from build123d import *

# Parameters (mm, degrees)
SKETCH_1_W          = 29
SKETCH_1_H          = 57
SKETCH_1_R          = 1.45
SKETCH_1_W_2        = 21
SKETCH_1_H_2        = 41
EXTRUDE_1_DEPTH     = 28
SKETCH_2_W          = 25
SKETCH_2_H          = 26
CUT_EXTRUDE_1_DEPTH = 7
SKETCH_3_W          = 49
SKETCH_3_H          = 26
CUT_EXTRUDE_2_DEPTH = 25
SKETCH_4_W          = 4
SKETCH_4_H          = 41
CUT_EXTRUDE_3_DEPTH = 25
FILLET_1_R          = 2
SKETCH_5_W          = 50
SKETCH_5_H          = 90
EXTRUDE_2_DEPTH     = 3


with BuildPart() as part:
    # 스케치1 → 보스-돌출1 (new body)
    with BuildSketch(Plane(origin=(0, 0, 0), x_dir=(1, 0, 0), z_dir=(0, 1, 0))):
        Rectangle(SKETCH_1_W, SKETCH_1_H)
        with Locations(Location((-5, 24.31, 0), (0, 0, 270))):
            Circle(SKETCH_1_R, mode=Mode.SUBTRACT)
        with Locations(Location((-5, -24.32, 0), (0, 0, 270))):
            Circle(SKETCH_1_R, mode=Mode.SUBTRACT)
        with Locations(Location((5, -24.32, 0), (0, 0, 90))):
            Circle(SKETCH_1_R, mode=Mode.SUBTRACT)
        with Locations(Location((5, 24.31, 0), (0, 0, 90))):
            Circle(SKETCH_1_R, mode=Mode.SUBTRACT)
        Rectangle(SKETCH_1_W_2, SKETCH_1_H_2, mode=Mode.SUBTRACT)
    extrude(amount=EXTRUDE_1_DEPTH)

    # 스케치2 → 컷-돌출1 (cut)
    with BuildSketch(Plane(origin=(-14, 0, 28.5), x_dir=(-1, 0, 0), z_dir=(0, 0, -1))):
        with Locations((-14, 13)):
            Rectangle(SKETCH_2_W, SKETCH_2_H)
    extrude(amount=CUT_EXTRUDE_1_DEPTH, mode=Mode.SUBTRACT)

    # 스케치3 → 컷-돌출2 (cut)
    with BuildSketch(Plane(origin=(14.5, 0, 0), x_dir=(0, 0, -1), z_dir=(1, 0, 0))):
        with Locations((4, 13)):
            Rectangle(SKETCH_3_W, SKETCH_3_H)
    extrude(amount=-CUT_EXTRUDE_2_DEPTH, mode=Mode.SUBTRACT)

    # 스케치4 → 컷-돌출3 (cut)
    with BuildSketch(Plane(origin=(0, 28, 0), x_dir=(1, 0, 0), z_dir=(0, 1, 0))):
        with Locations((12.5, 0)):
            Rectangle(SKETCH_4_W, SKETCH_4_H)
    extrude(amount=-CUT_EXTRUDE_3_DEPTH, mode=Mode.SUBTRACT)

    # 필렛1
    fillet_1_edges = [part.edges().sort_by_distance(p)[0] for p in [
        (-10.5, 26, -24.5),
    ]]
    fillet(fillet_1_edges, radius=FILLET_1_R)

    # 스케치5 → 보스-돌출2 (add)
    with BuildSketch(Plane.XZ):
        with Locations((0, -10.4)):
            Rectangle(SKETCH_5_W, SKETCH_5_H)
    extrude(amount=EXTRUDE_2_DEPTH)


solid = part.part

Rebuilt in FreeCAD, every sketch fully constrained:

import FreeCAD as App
import Part
import Sketcher

V = App.Vector
Q = App.Units.Quantity


def edges_at(feature, points):
    """Names of the edges that pass closest to the given points."""
    edges = feature.Shape.Edges
    near = lambda p: min(range(len(edges)), key=lambda i: edges[i].distToShape(Part.Vertex(*p))[0])
    return sorted({f"Edge{near(p) + 1}" for p in points})


def add_polygon(sketch, points):
    """Adds a closed chain of lines whose ends are joined by coincident constraints."""
    first, n = sketch.GeometryCount, len(points)
    for a, b in zip(points, points[1:] + points[:1]):
        sketch.addGeometry(Part.LineSegment(App.Vector(*a, 0), App.Vector(*b, 0)), False)
    for i in range(n):
        sketch.addConstraint(Sketcher.Constraint("Coincident", first + i, 2, first + (i + 1) % n, 1))

doc = App.newDocument("Part")
body = doc.addObject("PartDesign::Body", "Body")

# Sketch on XZ plane
sketch1 = doc.addObject("Sketcher::SketchObject", "Sketch")
body.addObject(sketch1)
sketch1.AttachmentSupport = (doc.XZ_Plane, [""])
sketch1.MapMode = "FlatFace"
add_polygon(sketch1, [(-14.5, -28.5), (-14.5, 28.5), (14.5, 28.5), (14.5, -28.5)])  # lines 0-3
sketch1.addGeometry(Part.Circle(V(-5, 24.3, 0), V(0, 0, 1), 1.4), False)  # 4
sketch1.addGeometry(Part.Circle(V(5, 24.3, 0), V(0, 0, 1), 1.4), False)  # 5
sketch1.addGeometry(Part.Circle(V(-5, -24.3, 0), V(0, 0, 1), 1.4), False)  # 6
add_polygon(sketch1, [(10.5, 20.5), (-10.5, 20.5), (-10.5, -20.5), (10.5, -20.5)])  # lines 7-10
sketch1.addGeometry(Part.Circle(V(5, -24.3, 0), V(0, 0, 1), 1.4), False)  # 11
sketch1.addConstraint(Sketcher.Constraint("Vertical", 0))
sketch1.addConstraint(Sketcher.Constraint("Horizontal", 1))
sketch1.addConstraint(Sketcher.Constraint("Vertical", 2))
sketch1.addConstraint(Sketcher.Constraint("Horizontal", 3))
sketch1.addConstraint(Sketcher.Constraint("Horizontal", 7))
sketch1.addConstraint(Sketcher.Constraint("Vertical", 8))
sketch1.addConstraint(Sketcher.Constraint("Horizontal", 9))
sketch1.addConstraint(Sketcher.Constraint("Vertical", 10))
sketch1.addConstraint(Sketcher.Constraint("Equal", 4, 5))
sketch1.addConstraint(Sketcher.Constraint("Equal", 5, 6))
sketch1.addConstraint(Sketcher.Constraint("Equal", 6, 11))
sketch1.addConstraint(Sketcher.Constraint("Symmetric", 0, 2, 2, 2, -1, 1))
sketch1.addConstraint(Sketcher.Constraint("Symmetric", 7, 2, 9, 2, -1, 1))
sketch1.addConstraint(Sketcher.Constraint("Symmetric", 4, 3, 5, 3, -2))
sketch1.addConstraint(Sketcher.Constraint("Symmetric", 6, 3, 11, 3, -2))
sketch1.addConstraint(Sketcher.Constraint("Vertical", 4, 3, 6, 3))
sketch1.addConstraint(Sketcher.Constraint("Diameter", 4, Q("2.9 mm")))
sketch1.addConstraint(Sketcher.Constraint("DistanceX", 1, 1, 1, 2, Q("29 mm")))
sketch1.addConstraint(Sketcher.Constraint("DistanceX", 7, 2, 7, 1, Q("21 mm")))
sketch1.addConstraint(Sketcher.Constraint("DistanceY", 0, 1, 0, 2, Q("57 mm")))
sketch1.addConstraint(Sketcher.Constraint("DistanceY", 8, 2, 8, 1, Q("41 mm")))
sketch1.addConstraint(Sketcher.Constraint("DistanceX", 4, 3, -1, 1, Q("5 mm")))
sketch1.addConstraint(Sketcher.Constraint("DistanceY", -1, 1, 4, 3, Q("24.32 mm")))
sketch1.addConstraint(Sketcher.Constraint("DistanceY", 6, 3, -1, 1, Q("24.31 mm")))
pad1 = doc.addObject("PartDesign::Pad", "Pad")
body.addObject(pad1)
pad1.Profile = sketch1
pad1.Length = 28
pad1.Reversed = True

# Sketch on XY plane
sketch2 = doc.addObject("Sketcher::SketchObject", "Sketch001")
body.addObject(sketch2)
sketch2.AttachmentSupport = (doc.XY_Plane, [""])
sketch2.MapMode = "FlatFace"
sketch2.AttachmentOffset = App.Placement(V(0, 0, 28.5), App.Rotation())
add_polygon(sketch2, [(12, 26), (12, 0), (-12, 0), (-12, 26)])  # lines 0-3
sketch2.addConstraint(Sketcher.Constraint("Vertical", 0))
sketch2.addConstraint(Sketcher.Constraint("Horizontal", 1))
sketch2.addConstraint(Sketcher.Constraint("Vertical", 2))
sketch2.addConstraint(Sketcher.Constraint("Horizontal", 3))
sketch2.addConstraint(Sketcher.Constraint("Symmetric", 0, 2, 1, 2, -1, 1))
sketch2.addConstraint(Sketcher.Constraint("DistanceX", 1, 2, 1, 1, Q("25 mm")))
sketch2.addConstraint(Sketcher.Constraint("DistanceY", 0, 2, 0, 1, Q("26 mm")))
pocket1 = doc.addObject("PartDesign::Pocket", "Pocket")
body.addObject(pocket1)
pocket1.Profile = sketch2
pocket1.Length = 7

# Sketch on YZ plane
sketch3 = doc.addObject("Sketcher::SketchObject", "Sketch002")
body.addObject(sketch3)
sketch3.AttachmentSupport = (doc.YZ_Plane, [""])
sketch3.MapMode = "FlatFace"
sketch3.AttachmentOffset = App.Placement(V(0, 0, 14.5), App.Rotation())
add_polygon(sketch3, [(26, 20), (0, 20), (0, -28), (26, -28)])  # lines 0-3
sketch3.addConstraint(Sketcher.Constraint("Horizontal", 0))
sketch3.addConstraint(Sketcher.Constraint("Vertical", 1))
sketch3.addConstraint(Sketcher.Constraint("Horizontal", 2))
sketch3.addConstraint(Sketcher.Constraint("Vertical", 3))
sketch3.addConstraint(Sketcher.Constraint("PointOnObject", 0, 2, -2))
sketch3.addConstraint(Sketcher.Constraint("DistanceX", 0, 2, 0, 1, Q("26 mm")))
sketch3.addConstraint(Sketcher.Constraint("DistanceY", 1, 2, 1, 1, Q("49 mm")))
sketch3.addConstraint(Sketcher.Constraint("DistanceY", -1, 1, 0, 2, Q("20.5 mm")))
pocket2 = doc.addObject("PartDesign::Pocket", "Pocket001")
body.addObject(pocket2)
pocket2.Profile = sketch3
pocket2.Length = 25

# Sketch on XZ plane
sketch4 = doc.addObject("Sketcher::SketchObject", "Sketch003")
body.addObject(sketch4)
sketch4.AttachmentSupport = (doc.XZ_Plane, [""])
sketch4.MapMode = "FlatFace"
sketch4.AttachmentOffset = App.Placement(V(0, 0, -28), App.Rotation())
add_polygon(sketch4, [(10.5, -20.5), (10.5, 20.5), (14.5, 20.5), (14.5, -20.5)])  # lines 0-3
sketch4.addConstraint(Sketcher.Constraint("Vertical", 0))
sketch4.addConstraint(Sketcher.Constraint("Horizontal", 1))
sketch4.addConstraint(Sketcher.Constraint("Vertical", 2))
sketch4.addConstraint(Sketcher.Constraint("Horizontal", 3))
sketch4.addConstraint(Sketcher.Constraint("DistanceX", 1, 1, 1, 2, Q("4 mm")))
sketch4.addConstraint(Sketcher.Constraint("DistanceY", 0, 1, 0, 2, Q("41 mm")))
sketch4.addConstraint(Sketcher.Constraint("DistanceX", -1, 1, 0, 2, Q("10.5 mm")))
sketch4.addConstraint(Sketcher.Constraint("DistanceY", -1, 1, 0, 2, Q("20.5 mm")))
pocket3 = doc.addObject("PartDesign::Pocket", "Pocket002")
body.addObject(pocket3)
pocket3.Profile = sketch4
pocket3.Length = 25
pocket3.Reversed = True
doc.recompute()

fillet = doc.addObject("PartDesign::Fillet", "Fillet")
body.addObject(fillet)
fillet.Base = (pocket3, edges_at(pocket3, [(-10.5, 26, -24.5)]))
fillet.Radius = 2

# Sketch on XZ plane
sketch5 = doc.addObject("Sketcher::SketchObject", "Sketch004")
body.addObject(sketch5)
sketch5.AttachmentSupport = (doc.XZ_Plane, [""])
sketch5.MapMode = "FlatFace"
add_polygon(sketch5, [(-25, 35), (-25, -55), (25, -55), (25, 35)])  # lines 0-3
sketch5.addConstraint(Sketcher.Constraint("Vertical", 0))
sketch5.addConstraint(Sketcher.Constraint("Horizontal", 1))
sketch5.addConstraint(Sketcher.Constraint("Vertical", 2))
sketch5.addConstraint(Sketcher.Constraint("Horizontal", 3))
sketch5.addConstraint(Sketcher.Constraint("DistanceX", 1, 1, 1, 2, Q("50 mm")))
sketch5.addConstraint(Sketcher.Constraint("DistanceY", 0, 2, 0, 1, Q("90 mm")))
sketch5.addConstraint(Sketcher.Constraint("DistanceX", 0, 2, -1, 1, Q("25 mm")))
sketch5.addConstraint(Sketcher.Constraint("DistanceY", 0, 2, -1, 1, Q("55.4 mm")))
pad2 = doc.addObject("PartDesign::Pad", "Pad001")
body.addObject(pad2)
pad2.Profile = sketch5
pad2.Length = 3

doc.recompute()
